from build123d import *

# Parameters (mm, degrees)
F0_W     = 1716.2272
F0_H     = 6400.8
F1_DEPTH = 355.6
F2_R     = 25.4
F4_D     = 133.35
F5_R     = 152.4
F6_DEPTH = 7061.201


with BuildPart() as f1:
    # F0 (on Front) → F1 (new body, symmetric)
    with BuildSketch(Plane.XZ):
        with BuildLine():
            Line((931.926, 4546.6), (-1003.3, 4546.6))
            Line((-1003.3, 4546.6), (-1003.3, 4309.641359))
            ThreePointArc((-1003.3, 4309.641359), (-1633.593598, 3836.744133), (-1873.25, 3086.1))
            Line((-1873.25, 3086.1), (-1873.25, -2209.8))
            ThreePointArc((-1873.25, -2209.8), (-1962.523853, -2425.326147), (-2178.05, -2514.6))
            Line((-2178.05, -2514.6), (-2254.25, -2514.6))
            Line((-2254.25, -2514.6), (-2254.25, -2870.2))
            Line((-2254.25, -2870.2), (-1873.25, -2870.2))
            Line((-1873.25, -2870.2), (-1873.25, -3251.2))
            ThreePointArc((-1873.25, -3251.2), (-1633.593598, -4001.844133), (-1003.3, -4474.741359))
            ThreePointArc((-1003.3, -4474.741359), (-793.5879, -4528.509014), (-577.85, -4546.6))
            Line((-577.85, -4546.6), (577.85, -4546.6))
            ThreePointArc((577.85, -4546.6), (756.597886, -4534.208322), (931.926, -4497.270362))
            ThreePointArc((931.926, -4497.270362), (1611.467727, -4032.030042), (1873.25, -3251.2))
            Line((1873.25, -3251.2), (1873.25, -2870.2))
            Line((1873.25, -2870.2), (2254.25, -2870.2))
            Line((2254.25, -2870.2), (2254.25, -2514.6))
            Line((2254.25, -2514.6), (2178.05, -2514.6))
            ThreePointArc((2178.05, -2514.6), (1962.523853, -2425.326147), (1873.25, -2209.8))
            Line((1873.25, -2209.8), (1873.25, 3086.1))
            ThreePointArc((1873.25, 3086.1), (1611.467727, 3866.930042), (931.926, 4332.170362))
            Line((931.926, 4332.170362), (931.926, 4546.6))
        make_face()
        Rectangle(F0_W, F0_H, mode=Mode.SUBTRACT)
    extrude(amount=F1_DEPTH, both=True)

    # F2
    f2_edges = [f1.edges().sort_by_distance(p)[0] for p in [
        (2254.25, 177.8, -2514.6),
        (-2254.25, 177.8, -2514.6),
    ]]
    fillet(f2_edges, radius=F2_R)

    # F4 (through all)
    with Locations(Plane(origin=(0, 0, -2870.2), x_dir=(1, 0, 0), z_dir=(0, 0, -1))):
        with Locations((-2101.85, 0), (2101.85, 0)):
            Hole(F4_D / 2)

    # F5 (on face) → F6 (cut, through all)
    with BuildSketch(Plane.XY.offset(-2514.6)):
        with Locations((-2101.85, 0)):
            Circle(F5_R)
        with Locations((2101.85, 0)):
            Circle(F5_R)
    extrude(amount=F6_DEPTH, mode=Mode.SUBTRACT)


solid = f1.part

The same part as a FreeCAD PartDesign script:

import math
import FreeCAD as App
import Part
import Sketcher
Q = App.Units.Quantity


def edges_at(feature, points):
    """Names of the edges that pass closest to the given points."""
    edges = feature.Shape.Edges
    near = lambda p: min(range(len(edges)), key=lambda i: edges[i].distToShape(Part.Vertex(*p))[0])
    return sorted({f"Edge{near(p) + 1}" for p in points})

doc = App.newDocument("Part")
body = doc.addObject("PartDesign::Body", "Body")

# Sketch on XZ plane
sketch1 = body.newObject("Sketcher::SketchObject", "Sketch")
sketch1.AttachmentSupport = (doc.getObject("XZ_Plane"), [""])
sketch1.MapMode = "FlatFace"
sketch1.addGeometry([
    Part.LineSegment(App.Vector(932, 4547, 0), App.Vector(-1003, 4547, 0)),  # 0
    Part.LineSegment(App.Vector(-1003, 4547, 0), App.Vector(-1003, 4310, 0)),  # 1
    Part.ArcOfCircle(Part.Circle(App.Vector(-578, 3086, 0), App.Vector(0, 0, 1), 1295), math.radians(109), math.radians(180)),  # 2
    Part.LineSegment(App.Vector(-1873, 3086, 0), App.Vector(-1873, -2210, 0)),  # 3
    Part.ArcOfCircle(Part.Circle(App.Vector(-2178, -2210, 0), App.Vector(0, 0, 1), 305), math.radians(-90), math.radians(0)),  # 4
    Part.LineSegment(App.Vector(-2178, -2515, 0), App.Vector(-2254, -2515, 0)),  # 5
    Part.LineSegment(App.Vector(-2254, -2515, 0), App.Vector(-2254, -2870, 0)),  # 6
    Part.LineSegment(App.Vector(-2254, -2870, 0), App.Vector(-1873, -2870, 0)),  # 7
    Part.LineSegment(App.Vector(-1873, -2870, 0), App.Vector(-1873, -3251, 0)),  # 8
    Part.ArcOfCircle(Part.Circle(App.Vector(-578, -3251, 0), App.Vector(0, 0, 1), 1295), math.radians(-180), math.radians(-109)),  # 9
    Part.ArcOfCircle(Part.Circle(App.Vector(-578, -3251, 0), App.Vector(0, 0, 1), 1295), math.radians(-109.17), math.radians(-90)),  # 10
    Part.LineSegment(App.Vector(-578, -4547, 0), App.Vector(578, -4547, 0)),  # 11
    Part.ArcOfCircle(Part.Circle(App.Vector(578, -3251, 0), App.Vector(0, 0, 1), 1295), math.radians(-90), math.radians(-74.14)),  # 12
    Part.ArcOfCircle(Part.Circle(App.Vector(578, -3251, 0), App.Vector(0, 0, 1), 1295), math.radians(-74), math.radians(0)),  # 13
    Part.LineSegment(App.Vector(1873, -3251, 0), App.Vector(1873, -2870, 0)),  # 14
    Part.LineSegment(App.Vector(1873, -2870, 0), App.Vector(2254, -2870, 0)),  # 15
    Part.LineSegment(App.Vector(2254, -2870, 0), App.Vector(2254, -2515, 0)),  # 16
    Part.LineSegment(App.Vector(2254, -2515, 0), App.Vector(2178, -2515, 0)),  # 17
    Part.ArcOfCircle(Part.Circle(App.Vector(2178, -2210, 0), App.Vector(0, 0, 1), 305), math.radians(180), math.radians(270)),  # 18
    Part.LineSegment(App.Vector(1873, -2210, 0), App.Vector(1873, 3086, 0)),  # 19
    Part.ArcOfCircle(Part.Circle(App.Vector(578, 3086, 0), App.Vector(0, 0, 1), 1295), math.radians(0), math.radians(74)),  # 20
    Part.LineSegment(App.Vector(932, 4332, 0), App.Vector(932, 4547, 0)),  # 21
    Part.LineSegment(App.Vector(858, -3200, 0), App.Vector(-858, -3200, 0)),  # 22
    Part.LineSegment(App.Vector(-858, -3200, 0), App.Vector(-858, 3200, 0)),  # 23
    Part.LineSegment(App.Vector(-858, 3200, 0), App.Vector(858, 3200, 0)),  # 24
    Part.LineSegment(App.Vector(858, 3200, 0), App.Vector(858, -3200, 0)),  # 25
], False)
sketch1.addConstraint([
    Sketcher.Constraint("Coincident", 0, 2, 1, 1),
    Sketcher.Constraint("Coincident", 1, 2, 2, 1),
    Sketcher.Constraint("Coincident", 2, 2, 3, 1),
    Sketcher.Constraint("Tangent", 3, 2, 4, 2),
    Sketcher.Constraint("Tangent", 4, 1, 5, 1),
    Sketcher.Constraint("Coincident", 5, 2, 6, 1),
    Sketcher.Constraint("Coincident", 6, 2, 7, 1),
    Sketcher.Constraint("Coincident", 7, 2, 8, 1),
    Sketcher.Constraint("Tangent", 8, 2, 9, 1),
    Sketcher.Constraint("Coincident", 9, 2, 10, 1),
    Sketcher.Constraint("Coincident", 10, 2, 11, 1),
    Sketcher.Constraint("Coincident", 11, 2, 12, 1),
    Sketcher.Constraint("Coincident", 12, 2, 13, 1),
    Sketcher.Constraint("Tangent", 13, 2, 14, 1),
    Sketcher.Constraint("Coincident", 14, 2, 15, 1),
    Sketcher.Constraint("Coincident", 15, 2, 16, 1),
    Sketcher.Constraint("Coincident", 16, 2, 17, 1),
    Sketcher.Constraint("Tangent", 17, 2, 18, 2),
    Sketcher.Constraint("Tangent", 18, 1, 19, 1),
    Sketcher.Constraint("Coincident", 19, 2, 20, 1),
    Sketcher.Constraint("Coincident", 20, 2, 21, 1),
    Sketcher.Constraint("Coincident", 21, 2, 0, 1),
    Sketcher.Constraint("Coincident", 22, 2, 23, 1),
    Sketcher.Constraint("Coincident", 23, 2, 24, 1),
    Sketcher.Constraint("Coincident", 24, 2, 25, 1),
    Sketcher.Constraint("Coincident", 25, 2, 22, 1),
    Sketcher.Constraint("Horizontal", 0),
    Sketcher.Constraint("Vertical", 1),
    Sketcher.Constraint("Vertical", 3),
    Sketcher.Constraint("Horizontal", 5),
    Sketcher.Constraint("Vertical", 6),
    Sketcher.Constraint("Horizontal", 7),
    Sketcher.Constraint("Vertical", 8),
    Sketcher.Constraint("Horizontal", 11),
    Sketcher.Constraint("Vertical", 14),
    Sketcher.Constraint("Horizontal", 15),
    Sketcher.Constraint("Vertical", 16),
    Sketcher.Constraint("Horizontal", 17),
    Sketcher.Constraint("Vertical", 19),
    Sketcher.Constraint("Vertical", 21),
    Sketcher.Constraint("Horizontal", 22),
    Sketcher.Constraint("Vertical", 23),
    Sketcher.Constraint("Horizontal", 24),
    Sketcher.Constraint("Vertical", 25),
    Sketcher.Constraint("Equal", 2, 9),
    Sketcher.Constraint("Equal", 9, 13),
    Sketcher.Constraint("Equal", 4, 18),
    Sketcher.Constraint("Equal", 13, 20),
    Sketcher.Constraint("Symmetric", 22, 2, 24, 2, -1, 1),
    Sketcher.Constraint("Symmetric", 9, 3, 13, 3, -2),
    Sketcher.Constraint("Symmetric", 4, 3, 18, 3, -2),
    Sketcher.Constraint("Symmetric", 6, 2, 15, 2, -2),
    Sketcher.Constraint("Horizontal", 2, 3, 20, 3),
    Sketcher.Constraint("Vertical", 2, 3, 9, 3),
    Sketcher.Constraint("Vertical", 1, 2, 9, 2),
    Sketcher.Constraint("Vertical", 20, 3, 11, 2),
    Sketcher.Constraint("Vertical", 12, 2, 20, 2),
    Sketcher.Constraint("Equal", 15, 8),
    Sketcher.Constraint("Equal", 3, 19),
    Sketcher.Constraint("Radius", 2, Q("51 in")),
    Sketcher.Constraint("Radius", 4, Q("12 in")),
    Sketcher.Constraint("DistanceX", 5, 2, 5, 1, Q("3 in")),
    Sketcher.Constraint("DistanceY", 6, 2, 6, 1, Q("14 in")),
    Sketcher.Constraint("DistanceY", 23, 1, 23, 2, Q("252 in")),
    Sketcher.Constraint("DistanceX", 11, 1, 11, 2, Q("45.5 in")),
    Sketcher.Constraint("DistanceY", 3, 2, 3, 1, Q("208.5 in")),
    Sketcher.Constraint("DistanceY", 4, 3, -1, 1, Q("87 in")),
    Sketcher.Constraint("DistanceY", -1, 1, 0, 2, Q("179 in")),
    Sketcher.Constraint("DistanceY", 10, 2, -1, 1, Q("179 in")),
    Sketcher.Constraint("DistanceX", 12, 3, 13, 2, Q("50.9999998 in")),
    Sketcher.Constraint("DistanceX", 0, 2, 0, 1, Q("76.19 in")),
    Sketcher.Constraint("DistanceY", -1, 1, 2, 3, Q("121.5 in")),
    Sketcher.Constraint("DistanceX", 0, 2, -1, 1, Q("39.5 in")),
    Sketcher.Constraint("DistanceX", 10, 3, 12, 3, Q("45.5 in")),
    Sketcher.Constraint("DistanceX", 9, 3, 12, 3, Q("45.5000001 in")),
    Sketcher.Constraint("DistanceX", 22, 2, 22, 1, Q("67.568 in")),
])
pad1 = body.newObject("PartDesign::Pad", "Pad")
pad1.Profile = sketch1
pad1.Length = Q("28 in")
pad1.Midplane = True
doc.recompute()

fillet = body.newObject("PartDesign::Fillet", "Fillet")
fillet.Base = (pad1, edges_at(pad1, [(2254.25, 0, -2514.6), (-2254.25, 0, -2514.6)]))
fillet.Radius = Q("1 in")

# Sketch on XY plane
sketch2 = body.newObject("Sketcher::SketchObject", "Sketch001")
sketch2.AttachmentSupport = (doc.getObject("XY_Plane"), [""])
sketch2.MapMode = "FlatFace"
sketch2.AttachmentOffset = App.Placement(App.Vector(0, 0, -113 * 25.4), App.Rotation())
sketch2.addGeometry([
    Part.Circle(App.Vector(-2102, 0, 0), App.Vector(0, 0, 1), 67),
    Part.Circle(App.Vector(2102, 0, 0), App.Vector(0, 0, 1), 67),
], False)
sketch2.addConstraint([
    Sketcher.Constraint("Equal", 0, 1),
    Sketcher.Constraint("Symmetric", 0, 3, 1, 3, -1, 1),
    Sketcher.Constraint("PointOnObject", 0, 3, -1),
    Sketcher.Constraint("Diameter", 0, Q("5.25 in")),
    Sketcher.Constraint("DistanceX", 0, 3, 1, 3, Q("165.5 in")),
])
doc.recompute()
hole = body.newObject("PartDesign::Hole", "Hole")
hole.Profile = sketch2
hole.ThreadType = "None"
hole.Diameter = Q("5.25 in")
hole.DepthType = "ThroughAll"
hole.Reversed = True

# Sketch on XY plane
sketch3 = body.newObject("Sketcher::SketchObject", "Sketch002")
sketch3.AttachmentSupport = (doc.getObject("XY_Plane"), [""])
sketch3.MapMode = "FlatFace"
sketch3.AttachmentOffset = App.Placement(App.Vector(0, 0, -99 * 25.4), App.Rotation())
sketch3.addGeometry([
    Part.Circle(App.Vector(-2102, 0, 0), App.Vector(0, 0, 1), 152),
    Part.Circle(App.Vector(2102, 0, 0), App.Vector(0, 0, 1), 152),
], False)
sketch3.addConstraint([
    Sketcher.Constraint("Equal", 0, 1),
    Sketcher.Constraint("Symmetric", 0, 3, 1, 3, -1, 1),
    Sketcher.Constraint("PointOnObject", 0, 3, -1),
    Sketcher.Constraint("Diameter", 0, Q("12 in")),
    Sketcher.Constraint("DistanceX", 0, 3, 1, 3, Q("165.5 in")),
])
pocket1 = body.newObject("PartDesign::Pocket", "Pocket")
pocket1.Profile = sketch3
pocket1.Type = "ThroughAll"
pocket1.Reversed = True

doc.recompute()
